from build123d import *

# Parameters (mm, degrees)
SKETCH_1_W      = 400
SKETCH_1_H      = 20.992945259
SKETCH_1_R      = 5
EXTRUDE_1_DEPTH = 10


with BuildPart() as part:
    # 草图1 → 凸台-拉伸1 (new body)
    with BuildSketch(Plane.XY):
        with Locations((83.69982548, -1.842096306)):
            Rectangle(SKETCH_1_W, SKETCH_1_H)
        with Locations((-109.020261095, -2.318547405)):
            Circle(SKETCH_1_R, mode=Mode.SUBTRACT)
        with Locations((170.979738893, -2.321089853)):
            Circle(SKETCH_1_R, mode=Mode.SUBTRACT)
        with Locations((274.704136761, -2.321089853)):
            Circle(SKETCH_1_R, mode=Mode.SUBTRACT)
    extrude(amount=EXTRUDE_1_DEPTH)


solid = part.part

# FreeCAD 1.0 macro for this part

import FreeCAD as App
import Part
import Sketcher

V = App.Vector


def add_polygon(sketch, points):
    """Adds a closed chain of lines whose ends are joined by coincident constraints."""
    first, n = sketch.GeometryCount, len(points)
    for a, b in zip(points, points[1:] + points[:1]):
        sketch.addGeometry(Part.LineSegment(App.Vector(*a, 0), App.Vector(*b, 0)), False)
    for i in range(n):
        sketch.addConstraint(Sketcher.Constraint("Coincident", first + i, 2, first + (i + 1) % n, 1))

doc = App.newDocument("Part")
body = doc.addObject("PartDesign::Body", "Body")

sketch1 = body.newObject("Sketcher::SketchObject", "Sketch")
sketch1.AttachmentSupport = (doc.getObject("XY_Plane"), [""])
sketch1.MapMode = "FlatFace"
add_polygon(sketch1, [(-116.300175, 8.654376), (-116.300175, -12.338569), (283.699825, -12.338569), (283.699825, 8.654376)])
sketch1.addGeometry(Part.Circle(V(170.979739, -2.32109, 0), V(0, 0, 1), 5), False)
sketch1.addGeometry(Part.Circle(V(274.704137, -2.32109, 0), V(0, 0, 1), 5), False)
sketch1.addGeometry(Part.Circle(V(-109.020261, -2.318547, 0), V(0, 0, 1), 5), False)
sketch1.addConstraint(Sketcher.Constraint("Vertical", 0))
sketch1.addConstraint(Sketcher.Constraint("Horizontal", 1))
sketch1.addConstraint(Sketcher.Constraint("Vertical", 2))
sketch1.addConstraint(Sketcher.Constraint("Horizontal", 3))
sketch1.addConstraint(Sketcher.Constraint("Equal", 4, 5))
sketch1.addConstraint(Sketcher.Constraint("Equal", 5, 6))
sketch1.addConstraint(Sketcher.Constraint("Horizontal", 4, 3, 5, 3))
sketch1.addConstraint(Sketcher.Constraint("Diameter", 4, 10.0))
sketch1.addConstraint(Sketcher.Constraint("DistanceX", 1, 1, 1, 2, 400.0))
sketch1.addConstraint(Sketcher.Constraint("DistanceX", 6, 3, 4, 3, 280.0))
sketch1.addConstraint(Sketcher.Constraint("DistanceY", 0, 2, 0, 1, 20.992945))
sketch1.addConstraint(Sketcher.Constraint("DistanceX", -1, 1, 4, 3, 170.979739))
sketch1.addConstraint(Sketcher.Constraint("DistanceY", 4, 3, -1, 1, 2.32109))
sketch1.addConstraint(Sketcher.Constraint("DistanceY", 0, 2, -1, 1, 12.338569))
sketch1.addConstraint(Sketcher.Constraint("DistanceY", 0, 2, 6, 3, 10.020022))
sketch1.addConstraint(Sketcher.Constraint("DistanceX", 0, 2, 5, 3, 391.004311))
sketch1.addConstraint(Sketcher.Constraint("DistanceX", -1, 1, 5, 3, 274.704137))
pad1 = body.newObject("PartDesign::Pad", "Pad")
pad1.Profile = sketch1
pad1.Length = 10

doc.recompute()
